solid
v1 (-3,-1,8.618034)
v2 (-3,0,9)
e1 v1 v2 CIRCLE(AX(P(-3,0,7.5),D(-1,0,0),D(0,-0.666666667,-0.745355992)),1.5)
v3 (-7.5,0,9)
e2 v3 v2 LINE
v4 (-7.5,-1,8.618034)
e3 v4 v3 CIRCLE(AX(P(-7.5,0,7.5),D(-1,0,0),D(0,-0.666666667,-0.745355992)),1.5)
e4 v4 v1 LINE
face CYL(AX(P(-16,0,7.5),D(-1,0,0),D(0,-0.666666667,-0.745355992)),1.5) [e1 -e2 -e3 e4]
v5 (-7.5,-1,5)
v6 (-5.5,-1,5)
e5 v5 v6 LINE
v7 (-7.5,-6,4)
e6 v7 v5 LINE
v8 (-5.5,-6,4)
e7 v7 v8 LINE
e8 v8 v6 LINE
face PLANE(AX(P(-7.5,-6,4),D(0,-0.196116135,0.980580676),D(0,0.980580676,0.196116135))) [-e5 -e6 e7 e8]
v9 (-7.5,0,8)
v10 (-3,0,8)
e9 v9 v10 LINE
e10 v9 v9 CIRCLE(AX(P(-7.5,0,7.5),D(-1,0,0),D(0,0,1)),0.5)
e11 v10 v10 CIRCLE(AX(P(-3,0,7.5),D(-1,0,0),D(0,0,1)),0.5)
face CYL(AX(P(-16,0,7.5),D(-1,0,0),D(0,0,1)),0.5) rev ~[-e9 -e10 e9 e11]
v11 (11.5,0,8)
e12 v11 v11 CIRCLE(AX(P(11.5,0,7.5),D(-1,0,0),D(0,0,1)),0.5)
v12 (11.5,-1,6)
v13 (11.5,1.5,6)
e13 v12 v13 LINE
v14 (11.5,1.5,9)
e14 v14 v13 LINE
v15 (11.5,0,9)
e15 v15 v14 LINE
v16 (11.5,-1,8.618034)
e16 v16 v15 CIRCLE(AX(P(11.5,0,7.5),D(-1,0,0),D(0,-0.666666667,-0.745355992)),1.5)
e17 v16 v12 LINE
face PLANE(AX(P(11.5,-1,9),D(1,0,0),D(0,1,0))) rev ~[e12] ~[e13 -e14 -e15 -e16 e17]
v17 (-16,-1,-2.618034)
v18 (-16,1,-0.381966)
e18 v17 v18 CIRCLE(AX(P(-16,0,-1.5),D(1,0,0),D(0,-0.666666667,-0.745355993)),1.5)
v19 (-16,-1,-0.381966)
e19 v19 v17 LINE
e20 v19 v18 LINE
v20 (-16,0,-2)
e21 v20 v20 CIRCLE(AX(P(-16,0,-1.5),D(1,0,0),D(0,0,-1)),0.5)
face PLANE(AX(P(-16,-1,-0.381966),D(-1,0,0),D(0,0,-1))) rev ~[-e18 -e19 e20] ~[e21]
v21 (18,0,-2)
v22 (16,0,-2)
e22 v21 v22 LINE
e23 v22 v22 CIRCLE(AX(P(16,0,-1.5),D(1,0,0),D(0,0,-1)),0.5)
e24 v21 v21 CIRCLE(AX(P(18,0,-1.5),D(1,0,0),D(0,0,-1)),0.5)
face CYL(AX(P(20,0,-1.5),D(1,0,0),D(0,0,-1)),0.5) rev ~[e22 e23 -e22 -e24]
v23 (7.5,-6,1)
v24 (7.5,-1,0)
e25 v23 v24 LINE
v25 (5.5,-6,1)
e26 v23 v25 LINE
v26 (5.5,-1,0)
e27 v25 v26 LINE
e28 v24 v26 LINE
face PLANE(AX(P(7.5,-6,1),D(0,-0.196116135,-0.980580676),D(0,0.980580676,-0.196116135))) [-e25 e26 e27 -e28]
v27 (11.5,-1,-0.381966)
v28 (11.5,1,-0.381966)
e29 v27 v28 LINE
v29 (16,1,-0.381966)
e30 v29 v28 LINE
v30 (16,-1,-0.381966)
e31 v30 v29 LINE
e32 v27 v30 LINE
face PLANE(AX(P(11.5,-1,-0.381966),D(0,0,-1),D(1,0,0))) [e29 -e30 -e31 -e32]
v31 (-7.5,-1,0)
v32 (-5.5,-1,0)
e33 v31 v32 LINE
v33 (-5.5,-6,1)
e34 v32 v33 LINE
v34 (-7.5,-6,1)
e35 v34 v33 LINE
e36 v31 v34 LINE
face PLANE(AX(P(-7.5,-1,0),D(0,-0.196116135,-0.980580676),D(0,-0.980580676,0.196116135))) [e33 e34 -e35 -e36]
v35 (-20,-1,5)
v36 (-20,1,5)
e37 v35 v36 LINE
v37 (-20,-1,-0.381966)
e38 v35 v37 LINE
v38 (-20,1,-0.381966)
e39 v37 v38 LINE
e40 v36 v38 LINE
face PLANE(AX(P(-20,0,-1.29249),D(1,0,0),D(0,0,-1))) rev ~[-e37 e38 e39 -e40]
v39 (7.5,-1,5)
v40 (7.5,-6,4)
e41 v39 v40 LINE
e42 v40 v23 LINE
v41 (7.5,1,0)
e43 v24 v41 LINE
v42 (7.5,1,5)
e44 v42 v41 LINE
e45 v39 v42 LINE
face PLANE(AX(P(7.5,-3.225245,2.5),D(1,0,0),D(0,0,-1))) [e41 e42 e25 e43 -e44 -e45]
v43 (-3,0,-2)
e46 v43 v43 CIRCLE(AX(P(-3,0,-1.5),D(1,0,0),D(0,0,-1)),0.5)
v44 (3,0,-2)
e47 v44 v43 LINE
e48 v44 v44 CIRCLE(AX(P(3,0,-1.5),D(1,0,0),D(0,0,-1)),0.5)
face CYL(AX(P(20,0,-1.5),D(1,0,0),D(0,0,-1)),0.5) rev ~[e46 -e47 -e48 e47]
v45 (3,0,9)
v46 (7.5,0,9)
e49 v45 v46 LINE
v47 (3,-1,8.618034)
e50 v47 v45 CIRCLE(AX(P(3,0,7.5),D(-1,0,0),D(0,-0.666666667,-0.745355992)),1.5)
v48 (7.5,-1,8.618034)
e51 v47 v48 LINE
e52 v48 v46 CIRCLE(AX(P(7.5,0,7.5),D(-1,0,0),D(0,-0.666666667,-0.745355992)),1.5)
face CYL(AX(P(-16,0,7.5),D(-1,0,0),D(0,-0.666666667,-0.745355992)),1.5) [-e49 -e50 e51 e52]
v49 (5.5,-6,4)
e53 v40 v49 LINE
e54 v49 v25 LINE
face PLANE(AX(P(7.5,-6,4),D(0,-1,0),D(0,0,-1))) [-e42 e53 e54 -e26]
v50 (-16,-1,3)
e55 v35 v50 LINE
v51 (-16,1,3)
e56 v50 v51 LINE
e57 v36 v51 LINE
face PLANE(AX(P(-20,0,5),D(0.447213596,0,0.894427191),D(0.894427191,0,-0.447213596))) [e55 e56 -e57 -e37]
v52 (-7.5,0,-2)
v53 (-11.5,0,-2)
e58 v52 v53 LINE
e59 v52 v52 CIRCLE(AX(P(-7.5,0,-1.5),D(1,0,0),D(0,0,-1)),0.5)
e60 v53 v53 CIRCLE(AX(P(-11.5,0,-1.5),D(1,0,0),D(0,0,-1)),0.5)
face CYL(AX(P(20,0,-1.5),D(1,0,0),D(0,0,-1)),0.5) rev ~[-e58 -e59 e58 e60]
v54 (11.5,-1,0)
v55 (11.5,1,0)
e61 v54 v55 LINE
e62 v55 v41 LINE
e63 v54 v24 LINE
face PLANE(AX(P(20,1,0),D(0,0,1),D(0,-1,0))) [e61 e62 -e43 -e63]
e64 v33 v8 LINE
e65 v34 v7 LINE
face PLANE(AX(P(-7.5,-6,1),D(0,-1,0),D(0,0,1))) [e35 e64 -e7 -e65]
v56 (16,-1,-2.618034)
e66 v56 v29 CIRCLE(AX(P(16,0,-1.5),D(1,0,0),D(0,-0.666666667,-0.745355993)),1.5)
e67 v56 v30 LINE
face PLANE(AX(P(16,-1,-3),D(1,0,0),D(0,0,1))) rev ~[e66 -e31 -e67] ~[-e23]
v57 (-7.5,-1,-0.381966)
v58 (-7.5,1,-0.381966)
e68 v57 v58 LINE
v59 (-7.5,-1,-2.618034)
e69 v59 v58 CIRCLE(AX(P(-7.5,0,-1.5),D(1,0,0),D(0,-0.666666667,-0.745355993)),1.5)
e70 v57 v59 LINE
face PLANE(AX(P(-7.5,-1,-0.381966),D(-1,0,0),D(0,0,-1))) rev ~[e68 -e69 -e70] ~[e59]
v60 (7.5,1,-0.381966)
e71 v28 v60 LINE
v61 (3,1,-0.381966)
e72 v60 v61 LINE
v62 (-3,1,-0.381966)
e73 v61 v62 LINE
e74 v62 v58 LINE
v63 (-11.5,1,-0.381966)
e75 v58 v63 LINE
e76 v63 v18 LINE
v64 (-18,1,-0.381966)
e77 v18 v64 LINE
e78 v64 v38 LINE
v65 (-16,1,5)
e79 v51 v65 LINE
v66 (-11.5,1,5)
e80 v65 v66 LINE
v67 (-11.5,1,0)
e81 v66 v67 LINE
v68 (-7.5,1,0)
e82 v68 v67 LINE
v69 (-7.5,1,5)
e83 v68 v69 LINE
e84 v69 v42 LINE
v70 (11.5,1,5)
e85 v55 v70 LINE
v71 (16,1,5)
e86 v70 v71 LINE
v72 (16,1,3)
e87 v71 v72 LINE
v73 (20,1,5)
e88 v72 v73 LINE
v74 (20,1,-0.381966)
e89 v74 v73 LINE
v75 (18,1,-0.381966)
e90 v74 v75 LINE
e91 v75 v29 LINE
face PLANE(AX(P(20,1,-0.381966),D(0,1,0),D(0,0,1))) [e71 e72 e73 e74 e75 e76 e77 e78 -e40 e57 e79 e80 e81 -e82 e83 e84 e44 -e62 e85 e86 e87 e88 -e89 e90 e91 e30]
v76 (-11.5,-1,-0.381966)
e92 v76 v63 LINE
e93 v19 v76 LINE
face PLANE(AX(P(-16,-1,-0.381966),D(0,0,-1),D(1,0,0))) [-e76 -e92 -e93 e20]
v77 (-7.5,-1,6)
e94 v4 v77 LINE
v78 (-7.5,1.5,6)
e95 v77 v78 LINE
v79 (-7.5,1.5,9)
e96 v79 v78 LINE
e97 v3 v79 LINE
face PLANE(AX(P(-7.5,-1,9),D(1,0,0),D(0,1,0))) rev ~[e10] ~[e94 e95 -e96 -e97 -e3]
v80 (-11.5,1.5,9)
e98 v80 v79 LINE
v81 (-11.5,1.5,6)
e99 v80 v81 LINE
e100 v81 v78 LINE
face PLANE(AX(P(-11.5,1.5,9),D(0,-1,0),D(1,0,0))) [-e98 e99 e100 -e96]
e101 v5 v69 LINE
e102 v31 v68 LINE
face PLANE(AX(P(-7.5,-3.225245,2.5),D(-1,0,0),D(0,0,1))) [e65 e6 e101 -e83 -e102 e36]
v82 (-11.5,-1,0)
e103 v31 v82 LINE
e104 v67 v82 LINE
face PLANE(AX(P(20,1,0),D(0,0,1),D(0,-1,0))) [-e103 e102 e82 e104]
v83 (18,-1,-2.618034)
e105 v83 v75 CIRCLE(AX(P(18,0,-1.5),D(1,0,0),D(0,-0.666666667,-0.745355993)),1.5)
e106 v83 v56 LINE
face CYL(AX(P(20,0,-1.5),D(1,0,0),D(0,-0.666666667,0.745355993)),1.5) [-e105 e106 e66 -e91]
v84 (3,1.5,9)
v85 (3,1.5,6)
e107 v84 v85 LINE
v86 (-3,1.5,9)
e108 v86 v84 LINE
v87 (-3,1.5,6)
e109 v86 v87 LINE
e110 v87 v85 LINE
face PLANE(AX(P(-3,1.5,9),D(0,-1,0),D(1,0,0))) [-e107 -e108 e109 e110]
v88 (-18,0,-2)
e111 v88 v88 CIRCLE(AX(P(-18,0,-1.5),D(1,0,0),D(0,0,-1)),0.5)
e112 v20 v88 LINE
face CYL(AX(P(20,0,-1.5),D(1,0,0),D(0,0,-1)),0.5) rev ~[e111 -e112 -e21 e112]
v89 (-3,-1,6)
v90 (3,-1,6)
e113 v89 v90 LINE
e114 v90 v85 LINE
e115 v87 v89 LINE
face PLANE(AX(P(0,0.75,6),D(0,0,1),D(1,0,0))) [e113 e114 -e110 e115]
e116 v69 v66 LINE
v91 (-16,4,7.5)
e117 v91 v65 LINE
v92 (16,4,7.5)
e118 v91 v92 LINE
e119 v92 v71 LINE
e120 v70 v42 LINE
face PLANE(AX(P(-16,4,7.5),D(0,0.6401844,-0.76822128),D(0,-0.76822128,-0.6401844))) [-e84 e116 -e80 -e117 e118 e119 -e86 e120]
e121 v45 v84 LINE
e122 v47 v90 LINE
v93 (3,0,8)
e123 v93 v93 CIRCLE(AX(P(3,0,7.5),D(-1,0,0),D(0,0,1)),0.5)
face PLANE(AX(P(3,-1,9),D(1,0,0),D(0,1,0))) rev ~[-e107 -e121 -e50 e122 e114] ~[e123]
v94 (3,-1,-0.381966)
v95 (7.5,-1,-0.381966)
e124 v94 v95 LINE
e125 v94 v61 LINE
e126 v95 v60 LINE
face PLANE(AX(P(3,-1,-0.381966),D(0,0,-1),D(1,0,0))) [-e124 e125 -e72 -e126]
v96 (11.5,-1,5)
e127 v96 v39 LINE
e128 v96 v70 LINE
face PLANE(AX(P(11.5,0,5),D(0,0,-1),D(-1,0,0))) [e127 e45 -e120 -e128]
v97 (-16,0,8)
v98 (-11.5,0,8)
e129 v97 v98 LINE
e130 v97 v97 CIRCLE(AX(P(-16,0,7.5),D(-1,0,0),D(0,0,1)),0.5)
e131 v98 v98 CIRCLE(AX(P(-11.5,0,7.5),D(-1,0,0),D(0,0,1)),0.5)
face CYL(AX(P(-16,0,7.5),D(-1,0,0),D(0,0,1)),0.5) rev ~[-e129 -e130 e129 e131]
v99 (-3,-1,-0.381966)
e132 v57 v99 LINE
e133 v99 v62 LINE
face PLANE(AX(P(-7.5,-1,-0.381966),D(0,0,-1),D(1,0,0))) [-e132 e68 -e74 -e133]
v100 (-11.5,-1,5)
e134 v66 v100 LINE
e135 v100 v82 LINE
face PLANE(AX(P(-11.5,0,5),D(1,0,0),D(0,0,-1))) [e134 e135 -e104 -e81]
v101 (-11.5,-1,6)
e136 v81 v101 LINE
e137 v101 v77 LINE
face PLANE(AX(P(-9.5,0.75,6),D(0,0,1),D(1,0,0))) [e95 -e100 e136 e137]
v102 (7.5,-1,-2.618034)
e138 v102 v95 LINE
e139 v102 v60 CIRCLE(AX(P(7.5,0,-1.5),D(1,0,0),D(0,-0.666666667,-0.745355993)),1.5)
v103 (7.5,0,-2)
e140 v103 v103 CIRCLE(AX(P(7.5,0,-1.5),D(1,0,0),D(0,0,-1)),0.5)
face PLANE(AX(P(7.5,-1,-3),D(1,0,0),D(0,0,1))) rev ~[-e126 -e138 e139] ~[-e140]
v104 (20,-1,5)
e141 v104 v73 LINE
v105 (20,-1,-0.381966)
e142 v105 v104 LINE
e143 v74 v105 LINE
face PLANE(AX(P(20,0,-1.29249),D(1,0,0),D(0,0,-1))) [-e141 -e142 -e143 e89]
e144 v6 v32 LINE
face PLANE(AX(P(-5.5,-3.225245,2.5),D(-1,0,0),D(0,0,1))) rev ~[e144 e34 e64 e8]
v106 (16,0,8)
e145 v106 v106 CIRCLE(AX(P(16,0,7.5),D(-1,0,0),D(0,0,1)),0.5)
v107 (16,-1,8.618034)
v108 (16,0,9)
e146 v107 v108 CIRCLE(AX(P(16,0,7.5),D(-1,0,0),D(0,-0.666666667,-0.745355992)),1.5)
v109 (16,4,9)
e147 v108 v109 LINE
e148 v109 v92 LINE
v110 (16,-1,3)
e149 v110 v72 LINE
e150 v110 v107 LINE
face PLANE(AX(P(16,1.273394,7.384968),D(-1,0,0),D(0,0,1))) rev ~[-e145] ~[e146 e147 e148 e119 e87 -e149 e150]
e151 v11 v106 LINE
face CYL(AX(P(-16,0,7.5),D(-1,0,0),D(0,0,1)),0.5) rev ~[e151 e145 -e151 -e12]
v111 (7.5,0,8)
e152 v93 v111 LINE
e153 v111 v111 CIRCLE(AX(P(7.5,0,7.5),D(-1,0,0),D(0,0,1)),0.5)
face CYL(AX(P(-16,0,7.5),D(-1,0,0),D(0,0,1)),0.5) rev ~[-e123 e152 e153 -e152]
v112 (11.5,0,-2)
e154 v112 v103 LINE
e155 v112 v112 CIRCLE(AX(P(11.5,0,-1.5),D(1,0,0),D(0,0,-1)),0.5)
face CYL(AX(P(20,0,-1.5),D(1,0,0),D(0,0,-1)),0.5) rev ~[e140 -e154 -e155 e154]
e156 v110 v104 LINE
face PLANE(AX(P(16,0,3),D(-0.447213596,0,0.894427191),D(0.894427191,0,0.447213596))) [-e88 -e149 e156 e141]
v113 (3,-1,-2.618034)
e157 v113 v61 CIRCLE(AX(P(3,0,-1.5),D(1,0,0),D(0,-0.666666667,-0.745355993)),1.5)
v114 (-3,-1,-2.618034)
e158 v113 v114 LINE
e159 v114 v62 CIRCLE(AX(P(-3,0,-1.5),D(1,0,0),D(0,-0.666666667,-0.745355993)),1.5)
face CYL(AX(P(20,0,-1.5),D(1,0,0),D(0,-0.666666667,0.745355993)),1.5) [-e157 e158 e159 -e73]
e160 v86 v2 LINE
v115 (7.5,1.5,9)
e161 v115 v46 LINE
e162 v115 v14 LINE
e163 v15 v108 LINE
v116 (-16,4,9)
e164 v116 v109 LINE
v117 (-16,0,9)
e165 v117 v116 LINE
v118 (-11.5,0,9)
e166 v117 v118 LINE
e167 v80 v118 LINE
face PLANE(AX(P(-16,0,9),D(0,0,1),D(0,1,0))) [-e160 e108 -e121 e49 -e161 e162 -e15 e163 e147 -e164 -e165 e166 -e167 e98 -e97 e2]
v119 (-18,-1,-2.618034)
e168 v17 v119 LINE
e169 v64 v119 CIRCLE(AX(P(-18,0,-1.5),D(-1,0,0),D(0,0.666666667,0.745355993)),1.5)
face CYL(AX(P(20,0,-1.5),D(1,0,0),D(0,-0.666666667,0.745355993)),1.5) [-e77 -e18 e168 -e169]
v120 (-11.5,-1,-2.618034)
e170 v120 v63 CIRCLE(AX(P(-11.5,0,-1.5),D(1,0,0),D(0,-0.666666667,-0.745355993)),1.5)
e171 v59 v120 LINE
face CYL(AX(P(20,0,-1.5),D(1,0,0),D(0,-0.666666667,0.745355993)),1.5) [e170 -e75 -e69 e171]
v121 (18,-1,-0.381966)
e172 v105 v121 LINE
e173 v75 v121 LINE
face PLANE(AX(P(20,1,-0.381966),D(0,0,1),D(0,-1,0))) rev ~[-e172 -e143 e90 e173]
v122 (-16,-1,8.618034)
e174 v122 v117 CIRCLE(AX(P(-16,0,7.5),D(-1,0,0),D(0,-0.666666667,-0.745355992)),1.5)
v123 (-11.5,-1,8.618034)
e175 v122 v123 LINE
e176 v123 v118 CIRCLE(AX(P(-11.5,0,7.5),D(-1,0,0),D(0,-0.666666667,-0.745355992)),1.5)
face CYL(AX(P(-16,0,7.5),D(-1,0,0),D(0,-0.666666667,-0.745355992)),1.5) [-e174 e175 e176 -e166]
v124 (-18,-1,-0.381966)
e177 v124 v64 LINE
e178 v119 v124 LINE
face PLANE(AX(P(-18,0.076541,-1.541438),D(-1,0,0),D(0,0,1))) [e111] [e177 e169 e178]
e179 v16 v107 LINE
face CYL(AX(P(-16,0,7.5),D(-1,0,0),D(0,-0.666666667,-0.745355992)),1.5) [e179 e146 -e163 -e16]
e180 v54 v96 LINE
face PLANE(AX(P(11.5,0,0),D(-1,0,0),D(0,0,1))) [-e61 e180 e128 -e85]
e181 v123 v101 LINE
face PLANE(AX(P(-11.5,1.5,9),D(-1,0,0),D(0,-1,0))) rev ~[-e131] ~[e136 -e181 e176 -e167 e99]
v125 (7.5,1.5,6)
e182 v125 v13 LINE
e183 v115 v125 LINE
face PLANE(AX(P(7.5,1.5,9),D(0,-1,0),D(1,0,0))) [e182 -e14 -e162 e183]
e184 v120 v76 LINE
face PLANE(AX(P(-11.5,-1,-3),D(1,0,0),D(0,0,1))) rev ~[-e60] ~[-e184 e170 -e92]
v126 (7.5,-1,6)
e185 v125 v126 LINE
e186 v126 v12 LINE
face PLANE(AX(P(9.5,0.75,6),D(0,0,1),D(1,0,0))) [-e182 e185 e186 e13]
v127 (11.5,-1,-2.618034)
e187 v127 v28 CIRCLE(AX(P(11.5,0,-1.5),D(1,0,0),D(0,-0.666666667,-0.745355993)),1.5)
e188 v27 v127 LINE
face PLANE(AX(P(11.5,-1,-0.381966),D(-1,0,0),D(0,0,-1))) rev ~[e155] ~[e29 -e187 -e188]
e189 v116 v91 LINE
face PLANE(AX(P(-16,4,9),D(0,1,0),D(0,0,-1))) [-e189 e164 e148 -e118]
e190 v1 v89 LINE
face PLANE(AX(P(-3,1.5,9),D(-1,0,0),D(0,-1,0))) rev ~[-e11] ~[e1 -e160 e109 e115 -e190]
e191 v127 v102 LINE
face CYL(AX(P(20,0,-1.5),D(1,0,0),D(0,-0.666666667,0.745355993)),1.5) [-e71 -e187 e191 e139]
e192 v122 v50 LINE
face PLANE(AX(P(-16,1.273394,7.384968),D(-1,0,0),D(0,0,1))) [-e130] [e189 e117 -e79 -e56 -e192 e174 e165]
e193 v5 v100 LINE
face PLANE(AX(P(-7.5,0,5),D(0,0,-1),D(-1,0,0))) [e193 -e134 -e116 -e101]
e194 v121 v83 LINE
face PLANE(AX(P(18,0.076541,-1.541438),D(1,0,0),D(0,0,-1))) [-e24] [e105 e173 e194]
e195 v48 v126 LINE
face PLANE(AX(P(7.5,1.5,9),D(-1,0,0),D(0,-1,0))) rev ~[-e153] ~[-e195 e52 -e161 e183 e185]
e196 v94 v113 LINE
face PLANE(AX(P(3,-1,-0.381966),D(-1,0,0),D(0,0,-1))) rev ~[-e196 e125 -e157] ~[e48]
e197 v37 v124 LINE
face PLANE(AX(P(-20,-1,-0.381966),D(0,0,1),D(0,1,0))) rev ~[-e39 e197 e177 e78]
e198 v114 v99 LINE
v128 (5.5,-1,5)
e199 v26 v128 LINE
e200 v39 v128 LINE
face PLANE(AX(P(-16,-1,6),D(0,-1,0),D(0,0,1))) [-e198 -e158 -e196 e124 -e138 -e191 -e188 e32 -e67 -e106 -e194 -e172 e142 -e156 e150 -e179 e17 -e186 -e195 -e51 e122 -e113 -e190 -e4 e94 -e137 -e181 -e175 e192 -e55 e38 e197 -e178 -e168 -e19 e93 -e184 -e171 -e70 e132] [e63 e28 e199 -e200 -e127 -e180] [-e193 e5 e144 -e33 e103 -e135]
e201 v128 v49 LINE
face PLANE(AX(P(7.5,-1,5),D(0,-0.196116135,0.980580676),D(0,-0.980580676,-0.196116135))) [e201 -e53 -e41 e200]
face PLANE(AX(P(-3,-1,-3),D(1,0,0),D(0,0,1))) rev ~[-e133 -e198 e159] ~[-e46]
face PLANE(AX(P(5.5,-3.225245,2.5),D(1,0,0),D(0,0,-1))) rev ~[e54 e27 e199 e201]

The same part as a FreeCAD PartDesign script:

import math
import FreeCAD as App
import Part
import Sketcher

V = App.Vector

doc = App.newDocument("Part")
body = doc.addObject("PartDesign::Body", "Body")

# Sketch on XZ plane
sketch1 = doc.addObject("Sketcher::SketchObject", "Sketch")
body.addObject(sketch1)
sketch1.AttachmentSupport = (doc.XZ_Plane, [""])
sketch1.MapMode = "FlatFace"
sketch1.addGeometry([
    Part.LineSegment(V(-20, 0, 0), V(-20, 5, 0)),  # 0
    Part.LineSegment(V(-20, 5, 0), V(-16, 3, 0)),  # 1
    Part.LineSegment(V(-16, 3, 0), V(-16, 6, 0)),  # 2
    Part.LineSegment(V(-16, 6, 0), V(16, 6, 0)),  # 3
    Part.LineSegment(V(16, 6, 0), V(16, 3, 0)),  # 4
    Part.LineSegment(V(16, 3, 0), V(20, 5, 0)),  # 5
    Part.LineSegment(V(20, 5, 0), V(20, 0, 0)),  # 6
    Part.LineSegment(V(20, 0, 0), V(11.5, 0, 0)),  # 7
    Part.LineSegment(V(11.5, 0, 0), V(11.5, 5, 0)),  # 8
    Part.LineSegment(V(11.5, 5, 0), V(7.5, 5, 0)),  # 9
    Part.LineSegment(V(7.5, 5, 0), V(7.5, 0, 0)),  # 10
    Part.LineSegment(V(7.5, 0, 0), V(-7.5, 0, 0)),  # 11
    Part.LineSegment(V(-7.5, 0, 0), V(-7.5, 5, 0)),  # 12
    Part.LineSegment(V(-7.5, 5, 0), V(-11.5, 5, 0)),  # 13
    Part.LineSegment(V(-11.5, 5, 0), V(-11.5, 0, 0)),  # 14
    Part.LineSegment(V(-11.5, 0, 0), V(-20, 0, 0)),  # 15
], False)
sketch1.addConstraint([
    Sketcher.Constraint("Coincident", 0, 2, 1, 1),
    Sketcher.Constraint("Coincident", 1, 2, 2, 1),
    Sketcher.Constraint("Coincident", 2, 2, 3, 1),
    Sketcher.Constraint("Coincident", 3, 2, 4, 1),
    Sketcher.Constraint("Coincident", 4, 2, 5, 1),
    Sketcher.Constraint("Coincident", 5, 2, 6, 1),
    Sketcher.Constraint("Coincident", 6, 2, 7, 1),
    Sketcher.Constraint("Coincident", 7, 2, 8, 1),
    Sketcher.Constraint("Coincident", 8, 2, 9, 1),
    Sketcher.Constraint("Coincident", 9, 2, 10, 1),
    Sketcher.Constraint("Coincident", 10, 2, 11, 1),
    Sketcher.Constraint("Coincident", 11, 2, 12, 1),
    Sketcher.Constraint("Coincident", 12, 2, 13, 1),
    Sketcher.Constraint("Coincident", 13, 2, 14, 1),
    Sketcher.Constraint("Coincident", 14, 2, 15, 1),
    Sketcher.Constraint("Coincident", 15, 2, 0, 1),
    Sketcher.Constraint("Vertical", 0),
    Sketcher.Constraint("Vertical", 2),
    Sketcher.Constraint("Horizontal", 3),
    Sketcher.Constraint("Vertical", 4),
    Sketcher.Constraint("Vertical", 6),
    Sketcher.Constraint("Horizontal", 7),
    Sketcher.Constraint("Vertical", 8),
    Sketcher.Constraint("Horizontal", 9),
    Sketcher.Constraint("Vertical", 10),
    Sketcher.Constraint("Horizontal", 11),
    Sketcher.Constraint("Vertical", 12),
    Sketcher.Constraint("Horizontal", 13),
    Sketcher.Constraint("Vertical", 14),
    Sketcher.Constraint("Horizontal", 15),
    Sketcher.Constraint("Symmetric", 10, 2, 11, 2, -1, 1),
    Sketcher.Constraint("Symmetric", 7, 2, 14, 2, -1, 1),
    Sketcher.Constraint("Symmetric", 1, 2, 4, 2, -2),
    Sketcher.Constraint("Symmetric", 0, 2, 5, 2, -2),
    Sketcher.Constraint("PointOnObject", 6, 2, -1),
    Sketcher.Constraint("Horizontal", 5, 2, 8, 2),
    Sketcher.Constraint("Horizontal", 9, 2, 12, 2),
    Sketcher.Constraint("DistanceX", 3, 1, 3, 2, 32.0),
    Sketcher.Constraint("DistanceX", 9, 2, 9, 1, 4.0),
    Sketcher.Constraint("DistanceX", 11, 2, 11, 1, 15.0),
    Sketcher.Constraint("DistanceY", 0, 1, 0, 2, 5.0),
    Sketcher.Constraint("DistanceY", 2, 1, 2, 2, 3.0),
    Sketcher.Constraint("DistanceX", 7, 2, 7, 1, 8.5),
    Sketcher.Constraint("DistanceY", -1, 1, 1, 2, 3.0),
])
pad1 = doc.addObject("PartDesign::Pad", "Pad")
body.addObject(pad1)
pad1.Profile = sketch1
pad1.Type = "TwoLengths"
pad1.Length = 1
pad1.Length2 = 1
pad1.Reversed = True

# Sketch on YZ plane
sketch2 = doc.addObject("Sketcher::SketchObject", "Sketch001")
body.addObject(sketch2)
sketch2.AttachmentSupport = (doc.YZ_Plane, [""])
sketch2.MapMode = "FlatFace"
sketch2.AttachmentOffset = App.Placement(V(0, 0, 20), App.Rotation())
sketch2.addGeometry([
    Part.LineSegment(V(-1, 0, 0), V(-1, -0.38, 0)),  # 0
    Part.ArcOfCircle(Part.Circle(V(0, -1.5, 0), V(0, 0, 1), 1.5), math.radians(132), math.radians(408)),  # 1
    Part.LineSegment(V(1, -0.38, 0), V(1, 0, 0)),  # 2
    Part.LineSegment(V(1, 0, 0), V(-1, 0, 0)),  # 3
    Part.Circle(V(0, -1.5, 0), V(0, 0, 1), 0.5),  # 4
], False)
sketch2.addConstraint([
    Sketcher.Constraint("Coincident", 0, 2, 1, 1),
    Sketcher.Constraint("Coincident", 1, 2, 2, 1),
    Sketcher.Constraint("Coincident", 2, 2, 3, 1),
    Sketcher.Constraint("Coincident", 3, 2, 0, 1),
    Sketcher.Constraint("Vertical", 0),
    Sketcher.Constraint("Vertical", 2),
    Sketcher.Constraint("Horizontal", 3),
    Sketcher.Constraint("Coincident", 4, 3, 1, 3),
    Sketcher.Constraint("Symmetric", 2, 2, 3, 2, -1, 1),
    Sketcher.Constraint("PointOnObject", 1, 3, -2),
    Sketcher.Constraint("Diameter", 4, 1.0),
    Sketcher.Constraint("Radius", 1, 1.5),
    Sketcher.Constraint("DistanceX", 3, 2, 3, 1, 2.0),
    Sketcher.Constraint("DistanceY", 1, 3, -1, 1, 1.5),
])
pad2 = doc.addObject("PartDesign::Pad", "Pad001")
body.addObject(pad2)
pad2.Profile = sketch2
pad2.Length = 40
pad2.Reversed = True

# Sketch on YZ plane
sketch3 = doc.addObject("Sketcher::SketchObject", "Sketch002")
body.addObject(sketch3)
sketch3.AttachmentSupport = (doc.YZ_Plane, [""])
sketch3.MapMode = "FlatFace"
sketch3.AttachmentOffset = App.Placement(V(0, 0, 20), App.Rotation())
sketch3.addGeometry([
    Part.LineSegment(V(-1, -2.6, 0), V(-1, -0.4, 0)),
    Part.ArcOfCircle(Part.Circle(V(0, -1.5, 0), V(0, 0, 1), 1.5), math.radians(132), math.radians(228)),
], False)
sketch3.addConstraint([
    Sketcher.Constraint("Coincident", 0, 1, 1, 2),
    Sketcher.Constraint("Coincident", 1, 1, 0, 2),
    Sketcher.Constraint("Vertical", 0),
    Sketcher.Constraint("PointOnObject", 1, 3, -2),
    Sketcher.Constraint("Radius", 1, 1.5),
    Sketcher.Constraint("DistanceX", 0, 1, -1, 1, 1.0),
    Sketcher.Constraint("DistanceY", 1, 3, -1, 1, 1.5),
])
pocket1 = doc.addObject("PartDesign::Pocket", "Pocket")
body.addObject(pocket1)
pocket1.Profile = sketch3
pocket1.Length = 40

# Sketch on YZ plane
sketch4 = doc.addObject("Sketcher::SketchObject", "Sketch003")
body.addObject(sketch4)
sketch4.AttachmentSupport = (doc.YZ_Plane, [""])
sketch4.MapMode = "FlatFace"
sketch4.AttachmentOffset = App.Placement(V(0, 0, 20), App.Rotation())
sketch4.addGeometry([
    Part.ArcOfCircle(Part.Circle(V(0, -1.5, 0), V(0, 0, 1), 1.5), math.radians(-132), math.radians(48)),
    Part.LineSegment(V(1, -0.4, 0), V(-1, -0.4, 0)),
    Part.LineSegment(V(-1, -0.4, 0), V(-1, -2.6, 0)),
    Part.Circle(V(0, -1.5, 0), V(0, 0, 1), 0.5),
], False)
sketch4.addConstraint([
    Sketcher.Constraint("Coincident", 0, 2, 1, 1),
    Sketcher.Constraint("Coincident", 1, 2, 2, 1),
    Sketcher.Constraint("Coincident", 2, 2, 0, 1),
    Sketcher.Constraint("Horizontal", 1),
    Sketcher.Constraint("Vertical", 2),
    Sketcher.Constraint("Coincident", 3, 3, 0, 3),
    Sketcher.Constraint("PointOnObject", 0, 3, -2),
    Sketcher.Constraint("Diameter", 3, 1.0),
    Sketcher.Constraint("Radius", 0, 1.5),
    Sketcher.Constraint("DistanceX", 1, 2, 1, 1, 2.0),
    Sketcher.Constraint("DistanceX", -1, 1, 0, 2, 1.0),
    Sketcher.Constraint("DistanceY", 0, 3, -1, 1, 1.5),
])
pocket2 = doc.addObject("PartDesign::Pocket", "Pocket001")
body.addObject(pocket2)
pocket2.Profile = sketch4
pocket2.Length = 2

# Sketch on YZ plane
sketch5 = doc.addObject("Sketcher::SketchObject", "Sketch004")
body.addObject(sketch5)
sketch5.AttachmentSupport = (doc.YZ_Plane, [""])
sketch5.MapMode = "FlatFace"
sketch5.AttachmentOffset = App.Placement(V(0, 0, -20), App.Rotation())
sketch5.addGeometry([
    Part.LineSegment(V(-1, -0.4, 0), V(1, -0.4, 0)),
    Part.ArcOfCircle(Part.Circle(V(0, -1.5, 0), V(0, 0, 1), 1.5), math.radians(-132), math.radians(48)),
    Part.LineSegment(V(-1, -2.6, 0), V(-1, -0.4, 0)),
    Part.Circle(V(0, -1.5, 0), V(0, 0, 1), 0.5),
], False)
sketch5.addConstraint([
    Sketcher.Constraint("Coincident", 0, 2, 1, 2),
    Sketcher.Constraint("Coincident", 1, 1, 2, 1),
    Sketcher.Constraint("Coincident", 2, 2, 0, 1),
    Sketcher.Constraint("Horizontal", 0),
    Sketcher.Constraint("Vertical", 2),
    Sketcher.Constraint("Coincident", 3, 3, 1, 3),
    Sketcher.Constraint("PointOnObject", 1, 3, -2),
    Sketcher.Constraint("Diameter", 3, 1.0),
    Sketcher.Constraint("Radius", 1, 1.5),
    Sketcher.Constraint("DistanceX", 0, 1, 0, 2, 2.0),
    Sketcher.Constraint("DistanceX", -1, 1, 0, 2, 1.0),
    Sketcher.Constraint("DistanceY", 1, 3, -1, 1, 1.5),
])
pocket3 = doc.addObject("PartDesign::Pocket", "Pocket002")
body.addObject(pocket3)
pocket3.Profile = sketch5
pocket3.Length = 2
pocket3.Reversed = True

# Sketch on YZ plane
sketch6 = doc.addObject("Sketcher::SketchObject", "Sketch005")
body.addObject(sketch6)
sketch6.AttachmentSupport = (doc.YZ_Plane, [""])
sketch6.MapMode = "FlatFace"
sketch6.AttachmentOffset = App.Placement(V(0, 0, -16), App.Rotation())
sketch6.addGeometry([
    Part.LineSegment(V(-1, 6, 0), V(-1, 6.38, 0)),  # 0
    Part.ArcOfCircle(Part.Circle(V(0, 7.5, 0), V(0, 0, 1), 1.5), math.radians(90), math.radians(228)),  # 1
    Part.LineSegment(V(0, 9, 0), V(4, 9, 0)),  # 2
    Part.LineSegment(V(4, 9, 0), V(4, 7.5, 0)),  # 3
    Part.LineSegment(V(4, 7.5, 0), V(1, 5, 0)),  # 4
    Part.LineSegment(V(1, 5, 0), V(1, 6, 0)),  # 5
    Part.LineSegment(V(1, 6, 0), V(-1, 6, 0)),  # 6
    Part.Circle(V(0, 7.5, 0), V(0, 0, 1), 0.5),  # 7
], False)
sketch6.addConstraint([
    Sketcher.Constraint("Coincident", 0, 2, 1, 2),
    Sketcher.Constraint("Tangent", 1, 1, 2, 1),
    Sketcher.Constraint("Coincident", 2, 2, 3, 1),
    Sketcher.Constraint("Coincident", 3, 2, 4, 1),
    Sketcher.Constraint("Coincident", 4, 2, 5, 1),
    Sketcher.Constraint("Coincident", 5, 2, 6, 1),
    Sketcher.Constraint("Coincident", 6, 2, 0, 1),
    Sketcher.Constraint("Vertical", 0),
    Sketcher.Constraint("Horizontal", 2),
    Sketcher.Constraint("Vertical", 3),
    Sketcher.Constraint("Vertical", 5),
    Sketcher.Constraint("Horizontal", 6),
    Sketcher.Constraint("Coincident", 7, 3, 1, 3),
    Sketcher.Constraint("PointOnObject", 1, 3, -2),
    Sketcher.Constraint("Horizontal", 7, 3, 3, 2),
    Sketcher.Constraint("Diameter", 7, 1.0),
    Sketcher.Constraint("Radius", 1, 1.5),
    Sketcher.Constraint("DistanceX", 2, 1, 2, 2, 4.0),
    Sketcher.Constraint("DistanceX", 6, 2, 6, 1, 2.0),
    Sketcher.Constraint("DistanceY", 5, 1, 5, 2, 1.0),
    Sketcher.Constraint("DistanceX", 0, 2, -1, 1, 1.0),
    Sketcher.Constraint("DistanceY", -1, 1, 1, 1, 9.0),
    Sketcher.Constraint("DistanceY", -1, 1, 4, 2, 5.0),
])
pad3 = doc.addObject("PartDesign::Pad", "Pad002")
body.addObject(pad3)
pad3.Profile = sketch6
pad3.Length = 32

# Sketch on YZ plane
sketch7 = doc.addObject("Sketcher::SketchObject", "Sketch006")
body.addObject(sketch7)
sketch7.AttachmentSupport = (doc.YZ_Plane, [""])
sketch7.MapMode = "FlatFace"
sketch7.AttachmentOffset = App.Placement(V(0, 0, -16), App.Rotation())
sketch7.addGeometry([
    Part.LineSegment(V(-1, 8.6, 0), V(-1, 6.4, 0)),
    Part.ArcOfCircle(Part.Circle(V(0, 7.5, 0), V(0, 0, 1), 1.5), math.radians(132), math.radians(228)),
], False)
sketch7.addConstraint([
    Sketcher.Constraint("Coincident", 0, 1, 1, 1),
    Sketcher.Constraint("Coincident", 1, 2, 0, 2),
    Sketcher.Constraint("Vertical", 0),
    Sketcher.Constraint("PointOnObject", 1, 3, -2),
    Sketcher.Constraint("Radius", 1, 1.5),
    Sketcher.Constraint("DistanceX", 0, 1, -1, 1, 1.0),
    Sketcher.Constraint("DistanceY", -1, 1, 1, 3, 7.5),
])
pocket4 = doc.addObject("PartDesign::Pocket", "Pocket003")
body.addObject(pocket4)
pocket4.Profile = sketch7
pocket4.Length = 36
pocket4.Reversed = True

# Sketch on XZ plane
sketch8 = doc.addObject("Sketcher::SketchObject", "Sketch007")
body.addObject(sketch8)
sketch8.AttachmentSupport = (doc.XZ_Plane, [""])
sketch8.MapMode = "FlatFace"
sketch8.AttachmentOffset = App.Placement(V(0, 0, 1), App.Rotation())
sketch8.addGeometry([
    Part.LineSegment(V(11.5, -0.4, 0), V(11.5, -3, 0)),  # 0
    Part.LineSegment(V(11.5, -3, 0), V(16, -3, 0)),  # 1
    Part.LineSegment(V(16, -3, 0), V(16, -0.4, 0)),  # 2
    Part.LineSegment(V(16, -0.4, 0), V(11.5, -0.4, 0)),  # 3
    Part.LineSegment(V(3, -0.4, 0), V(3, -3, 0)),  # 4
    Part.LineSegment(V(3, -3, 0), V(7.5, -3, 0)),  # 5
    Part.LineSegment(V(7.5, -3, 0), V(7.5, -0.4, 0)),  # 6
    Part.LineSegment(V(7.5, -0.4, 0), V(3, -0.4, 0)),  # 7
    Part.LineSegment(V(-7.5, -0.4, 0), V(-7.5, -3, 0)),  # 8
    Part.LineSegment(V(-7.5, -3, 0), V(-3, -3, 0)),  # 9
    Part.LineSegment(V(-3, -3, 0), V(-3, -0.4, 0)),  # 10
    Part.LineSegment(V(-3, -0.4, 0), V(-7.5, -0.4, 0)),  # 11
    Part.LineSegment(V(-16, -0.4, 0), V(-16, -3, 0)),  # 12
    Part.LineSegment(V(-16, -3, 0), V(-11.5, -3, 0)),  # 13
    Part.LineSegment(V(-11.5, -3, 0), V(-11.5, -0.4, 0)),  # 14
    Part.LineSegment(V(-11.5, -0.4, 0), V(-16, -0.4, 0)),  # 15
], False)
sketch8.addConstraint([
    Sketcher.Constraint("Coincident", 0, 2, 1, 1),
    Sketcher.Constraint("Coincident", 1, 2, 2, 1),
    Sketcher.Constraint("Coincident", 2, 2, 3, 1),
    Sketcher.Constraint("Coincident", 3, 2, 0, 1),
    Sketcher.Constraint("Coincident", 4, 2, 5, 1),
    Sketcher.Constraint("Coincident", 5, 2, 6, 1),
    Sketcher.Constraint("Coincident", 6, 2, 7, 1),
    Sketcher.Constraint("Coincident", 7, 2, 4, 1),
    Sketcher.Constraint("Coincident", 8, 2, 9, 1),
    Sketcher.Constraint("Coincident", 9, 2, 10, 1),
    Sketcher.Constraint("Coincident", 10, 2, 11, 1),
    Sketcher.Constraint("Coincident", 11, 2, 8, 1),
    Sketcher.Constraint("Coincident", 12, 2, 13, 1),
    Sketcher.Constraint("Coincident", 13, 2, 14, 1),
    Sketcher.Constraint("Coincident", 14, 2, 15, 1),
    Sketcher.Constraint("Coincident", 15, 2, 12, 1),
    Sketcher.Constraint("Vertical", 0),
    Sketcher.Constraint("Horizontal", 1),
    Sketcher.Constraint("Vertical", 2),
    Sketcher.Constraint("Horizontal", 3),
    Sketcher.Constraint("Vertical", 4),
    Sketcher.Constraint("Horizontal", 5),
    Sketcher.Constraint("Vertical", 6),
    Sketcher.Constraint("Horizontal", 7),
    Sketcher.Constraint("Vertical", 8),
    Sketcher.Constraint("Horizontal", 9),
    Sketcher.Constraint("Vertical", 10),
    Sketcher.Constraint("Horizontal", 11),
    Sketcher.Constraint("Vertical", 12),
    Sketcher.Constraint("Horizontal", 13),
    Sketcher.Constraint("Vertical", 14),
    Sketcher.Constraint("Horizontal", 15),
    Sketcher.Constraint("Symmetric", 5, 2, 8, 2, -2),
    Sketcher.Constraint("Symmetric", 7, 2, 10, 2, -2),
    Sketcher.Constraint("Symmetric", 1, 2, 12, 2, -2),
    Sketcher.Constraint("Symmetric", 3, 2, 14, 2, -2),
    Sketcher.Constraint("Horizontal", 1, 2, 4, 2),
    Sketcher.Constraint("Horizontal", 3, 2, 6, 2),
    Sketcher.Constraint("Equal", 3, 5),
    Sketcher.Constraint("DistanceX", 1, 1, 1, 2, 4.5),
    Sketcher.Constraint("DistanceY", 0, 2, -1, 1, 3.0),
    Sketcher.Constraint("DistanceX", -1, 1, 1, 2, 16.0),
    Sketcher.Constraint("DistanceX", -1, 1, 4, 2, 3.0),
    Sketcher.Constraint("DistanceY", 0, 2, 0, 1, 2.618034),
])
pocket5 = doc.addObject("PartDesign::Pocket", "Pocket004")
body.addObject(pocket5)
pocket5.Profile = sketch8
pocket5.Length = 36

# Sketch on XY plane
sketch9 = doc.addObject("Sketcher::SketchObject", "Sketch008")
body.addObject(sketch9)
sketch9.AttachmentSupport = (doc.XY_Plane, [""])
sketch9.MapMode = "FlatFace"
sketch9.AttachmentOffset = App.Placement(V(0, 0, 9), App.Rotation())
sketch9.addGeometry([
    Part.LineSegment(V(-11.5, 1.5, 0), V(-11.5, -1, 0)),  # 0
    Part.LineSegment(V(-11.5, -1, 0), V(-7.5, -1, 0)),  # 1
    Part.LineSegment(V(-7.5, -1, 0), V(-7.5, 1.5, 0)),  # 2
    Part.LineSegment(V(-7.5, 1.5, 0), V(-11.5, 1.5, 0)),  # 3
    Part.LineSegment(V(-3, 1.5, 0), V(-3, -1, 0)),  # 4
    Part.LineSegment(V(-3, -1, 0), V(3, -1, 0)),  # 5
    Part.LineSegment(V(3, -1, 0), V(3, 1.5, 0)),  # 6
    Part.LineSegment(V(3, 1.5, 0), V(-3, 1.5, 0)),  # 7
    Part.LineSegment(V(7.5, 1.5, 0), V(7.5, -1, 0)),  # 8
    Part.LineSegment(V(7.5, -1, 0), V(11.5, -1, 0)),  # 9
    Part.LineSegment(V(11.5, -1, 0), V(11.5, 1.5, 0)),  # 10
    Part.LineSegment(V(11.5, 1.5, 0), V(7.5, 1.5, 0)),  # 11
], False)
sketch9.addConstraint([
    Sketcher.Constraint("Coincident", 0, 2, 1, 1),
    Sketcher.Constraint("Coincident", 1, 2, 2, 1),
    Sketcher.Constraint("Coincident", 2, 2, 3, 1),
    Sketcher.Constraint("Coincident", 3, 2, 0, 1),
    Sketcher.Constraint("Coincident", 4, 2, 5, 1),
    Sketcher.Constraint("Coincident", 5, 2, 6, 1),
    Sketcher.Constraint("Coincident", 6, 2, 7, 1),
    Sketcher.Constraint("Coincident", 7, 2, 4, 1),
    Sketcher.Constraint("Coincident", 8, 2, 9, 1),
    Sketcher.Constraint("Coincident", 9, 2, 10, 1),
    Sketcher.Constraint("Coincident", 10, 2, 11, 1),
    Sketcher.Constraint("Coincident", 11, 2, 8, 1),
    Sketcher.Constraint("Vertical", 0),
    Sketcher.Constraint("Horizontal", 1),
    Sketcher.Constraint("Vertical", 2),
    Sketcher.Constraint("Horizontal", 3),
    Sketcher.Constraint("Vertical", 4),
    Sketcher.Constraint("Horizontal", 5),
    Sketcher.Constraint("Vertical", 6),
    Sketcher.Constraint("Horizontal", 7),
    Sketcher.Constraint("Vertical", 8),
    Sketcher.Constraint("Horizontal", 9),
    Sketcher.Constraint("Vertical", 10),
    Sketcher.Constraint("Horizontal", 11),
    Sketcher.Constraint("Symmetric", 1, 2, 8, 2, -2),
    Sketcher.Constraint("Symmetric", 3, 2, 10, 2, -2),
    Sketcher.Constraint("Horizontal", 1, 2, 4, 2),
    Sketcher.Constraint("Horizontal", 3, 2, 6, 2),
    Sketcher.Constraint("DistanceX", 1, 1, 1, 2, 4.0),
    Sketcher.Constraint("DistanceX", 5, 1, 5, 2, 6.0),
    Sketcher.Constraint("DistanceY", 0, 2, 0, 1, 2.5),
    Sketcher.Constraint("DistanceY", 0, 2, -1, 1, 1.0),
    Sketcher.Constraint("DistanceX", 4, 2, -1, 1, 3.0),
    Sketcher.Constraint("DistanceX", 1, 2, 8, 2, 15.0),
])
pocket6 = doc.addObject("PartDesign::Pocket", "Pocket005")
body.addObject(pocket6)
pocket6.Profile = sketch9
pocket6.Length = 3

# Sketch on YZ plane
sketch10 = doc.addObject("Sketcher::SketchObject", "Sketch009")
body.addObject(sketch10)
sketch10.AttachmentSupport = (doc.YZ_Plane, [""])
sketch10.MapMode = "FlatFace"
sketch10.AttachmentOffset = App.Placement(V(0, 0, -7.5), App.Rotation())
sketch10.addGeometry([
    Part.LineSegment(V(-1, 5, 0), V(-1, 0, 0)),
    Part.LineSegment(V(-1, 0, 0), V(-6, 1, 0)),
    Part.LineSegment(V(-6, 1, 0), V(-6, 4, 0)),
    Part.LineSegment(V(-6, 4, 0), V(-1, 5, 0)),
], False)
sketch10.addConstraint([
    Sketcher.Constraint("Coincident", 0, 2, 1, 1),
    Sketcher.Constraint("Coincident", 1, 2, 2, 1),
    Sketcher.Constraint("Coincident", 2, 2, 3, 1),
    Sketcher.Constraint("Coincident", 3, 2, 0, 1),
    Sketcher.Constraint("Vertical", 0),
    Sketcher.Constraint("Vertical", 2),
    Sketcher.Constraint("PointOnObject", 0, 2, -1),
    Sketcher.Constraint("Equal", 1, 3),
    Sketcher.Constraint("DistanceY", 0, 2, 0, 1, 5.0),
    Sketcher.Constraint("DistanceY", 2, 1, 2, 2, 3.0),
    Sketcher.Constraint("DistanceX", 0, 2, -1, 1, 1.0),
    Sketcher.Constraint("DistanceX", 1, 2, -1, 1, 6.0),
])
pad4 = doc.addObject("PartDesign::Pad", "Pad003")
body.addObject(pad4)
pad4.Profile = sketch10
pad4.Length = 2

# Sketch on YZ plane
sketch11 = doc.addObject("Sketcher::SketchObject", "Sketch010")
body.addObject(sketch11)
sketch11.AttachmentSupport = (doc.YZ_Plane, [""])
sketch11.MapMode = "FlatFace"
sketch11.AttachmentOffset = App.Placement(V(0, 0, 7.5), App.Rotation())
sketch11.addGeometry([
    Part.LineSegment(V(-1, 0, 0), V(-1, 5, 0)),
    Part.LineSegment(V(-1, 5, 0), V(-6, 4, 0)),
    Part.LineSegment(V(-6, 4, 0), V(-6, 1, 0)),
    Part.LineSegment(V(-6, 1, 0), V(-1, 0, 0)),
], False)
sketch11.addConstraint([
    Sketcher.Constraint("Coincident", 0, 2, 1, 1),
    Sketcher.Constraint("Coincident", 1, 2, 2, 1),
    Sketcher.Constraint("Coincident", 2, 2, 3, 1),
    Sketcher.Constraint("Coincident", 3, 2, 0, 1),
    Sketcher.Constraint("Vertical", 0),
    Sketcher.Constraint("Vertical", 2),
    Sketcher.Constraint("PointOnObject", 3, 2, -1),
    Sketcher.Constraint("Equal", 1, 3),
    Sketcher.Constraint("DistanceY", 0, 1, 0, 2, 5.0),
    Sketcher.Constraint("DistanceY", 2, 2, 2, 1, 3.0),
    Sketcher.Constraint("DistanceX", 0, 2, -1, 1, 1.0),
    Sketcher.Constraint("DistanceX", 1, 2, -1, 1, 6.0),
])
pad5 = doc.addObject("PartDesign::Pad", "Pad004")
body.addObject(pad5)
pad5.Profile = sketch11
pad5.Length = 2
pad5.Reversed = True

doc.recompute()
